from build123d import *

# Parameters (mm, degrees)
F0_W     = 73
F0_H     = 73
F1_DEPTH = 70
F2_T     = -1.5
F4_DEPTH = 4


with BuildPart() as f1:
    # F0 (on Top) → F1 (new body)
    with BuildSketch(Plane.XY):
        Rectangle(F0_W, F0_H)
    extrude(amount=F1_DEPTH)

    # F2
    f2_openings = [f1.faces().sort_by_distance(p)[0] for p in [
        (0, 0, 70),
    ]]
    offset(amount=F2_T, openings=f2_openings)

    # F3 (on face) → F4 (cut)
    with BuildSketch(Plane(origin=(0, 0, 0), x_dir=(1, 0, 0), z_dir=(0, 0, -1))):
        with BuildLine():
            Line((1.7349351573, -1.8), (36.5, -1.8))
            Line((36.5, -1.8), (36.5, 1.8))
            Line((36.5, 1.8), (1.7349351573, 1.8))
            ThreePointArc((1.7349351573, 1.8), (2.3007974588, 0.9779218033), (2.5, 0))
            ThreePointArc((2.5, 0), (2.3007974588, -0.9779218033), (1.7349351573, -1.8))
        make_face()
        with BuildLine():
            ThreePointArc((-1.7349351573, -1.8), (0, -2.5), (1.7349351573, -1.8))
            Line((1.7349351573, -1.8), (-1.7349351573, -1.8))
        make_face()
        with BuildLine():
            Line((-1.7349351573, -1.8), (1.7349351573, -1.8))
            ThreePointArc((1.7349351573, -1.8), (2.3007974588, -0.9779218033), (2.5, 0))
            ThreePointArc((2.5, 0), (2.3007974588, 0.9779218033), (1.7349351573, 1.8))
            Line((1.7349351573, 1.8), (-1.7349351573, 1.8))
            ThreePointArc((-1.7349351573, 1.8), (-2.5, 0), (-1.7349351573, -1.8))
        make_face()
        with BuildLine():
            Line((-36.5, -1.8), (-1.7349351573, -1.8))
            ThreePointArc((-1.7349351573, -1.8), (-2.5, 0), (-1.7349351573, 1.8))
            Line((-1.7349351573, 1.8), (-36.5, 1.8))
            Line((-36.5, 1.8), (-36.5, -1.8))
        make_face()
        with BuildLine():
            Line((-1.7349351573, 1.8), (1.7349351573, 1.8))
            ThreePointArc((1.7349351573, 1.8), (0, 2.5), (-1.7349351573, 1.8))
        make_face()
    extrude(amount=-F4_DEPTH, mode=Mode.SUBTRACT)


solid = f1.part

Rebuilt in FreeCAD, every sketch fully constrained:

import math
import FreeCAD as App
import Part
import Sketcher
Q = App.Units.Quantity


def faces_at(feature, points):
    """Names of the faces that lie closest to the given points."""
    faces = feature.Shape.Faces
    near = lambda p: min(range(len(faces)), key=lambda i: faces[i].distToShape(Part.Vertex(*p))[0])
    return sorted({f"Face{near(p) + 1}" for p in points})


def add_polygon(sketch, points):
    """Adds a closed chain of lines whose ends are joined by coincident constraints."""
    first, n = sketch.GeometryCount, len(points)
    for a, b in zip(points, points[1:] + points[:1]):
        sketch.addGeometry(Part.LineSegment(App.Vector(*a, 0), App.Vector(*b, 0)), False)
    for i in range(n):
        sketch.addConstraint(Sketcher.Constraint("Coincident", first + i, 2, first + (i + 1) % n, 1))

doc = App.newDocument("Part")
body = doc.addObject("PartDesign::Body", "Body")

# Sketch on XY plane
sketch1 = body.newObject("Sketcher::SketchObject", "Sketch")
sketch1.AttachmentSupport = (doc.getObject("XY_Plane"), [""])
sketch1.MapMode = "FlatFace"
add_polygon(sketch1, [(-36.5, 36.5), (-36.5, -36.5), (36.5, -36.5), (36.5, 36.5)])  # lines 0-3
sketch1.addConstraint(Sketcher.Constraint("Vertical", 0))
sketch1.addConstraint(Sketcher.Constraint("Horizontal", 1))
sketch1.addConstraint(Sketcher.Constraint("Vertical", 2))
sketch1.addConstraint(Sketcher.Constraint("Horizontal", 3))
sketch1.addConstraint(Sketcher.Constraint("Symmetric", 0, 2, 2, 2, -1, 1))
sketch1.addConstraint(Sketcher.Constraint("Equal", 3, 0))
sketch1.addConstraint(Sketcher.Constraint("DistanceX", 1, 1, 1, 2, Q("73 mm")))
pad1 = body.newObject("PartDesign::Pad", "Pad")
pad1.Profile = sketch1
pad1.Length = 70
doc.recompute()

thickness = body.newObject("PartDesign::Thickness", "Thickness")
thickness.Base = (pad1, faces_at(pad1, [(0, 0, 70)]))
thickness.Value = 1.5
thickness.Reversed = True
thickness.Join = "Arc"

# Sketch on XY plane
sketch2 = body.newObject("Sketcher::SketchObject", "Sketch001")
sketch2.AttachmentSupport = (doc.getObject("XY_Plane"), [""])
sketch2.MapMode = "FlatFace"
sketch2.addGeometry(Part.LineSegment(App.Vector(1.734935, 1.8, 0), App.Vector(36.5, 1.8, 0)), False)
sketch2.addGeometry(Part.LineSegment(App.Vector(36.5, 1.8, 0), App.Vector(36.5, -1.8, 0)), False)
sketch2.addGeometry(Part.LineSegment(App.Vector(36.5, -1.8, 0), App.Vector(1.734935, -1.8, 0)), False)
sketch2.addGeometry(Part.ArcOfCircle(Part.Circle(App.Vector(0, 0, 0), App.Vector(0, 0, 1), 2.5), math.radians(-133.94552), math.radians(-46.05448)), False)
sketch2.addGeometry(Part.LineSegment(App.Vector(-1.734935, -1.8, 0), App.Vector(-36.5, -1.8, 0)), False)
sketch2.addGeometry(Part.LineSegment(App.Vector(-36.5, -1.8, 0), App.Vector(-36.5, 1.8, 0)), False)
sketch2.addGeometry(Part.LineSegment(App.Vector(-36.5, 1.8, 0), App.Vector(-1.734935, 1.8, 0)), False)
sketch2.addGeometry(Part.ArcOfCircle(Part.Circle(App.Vector(0, 0, 0), App.Vector(0, 0, 1), 2.5), math.radians(46.05448), math.radians(133.94552)), False)
sketch2.addConstraint(Sketcher.Constraint("Coincident", 0, 2, 1, 1))
sketch2.addConstraint(Sketcher.Constraint("Coincident", 1, 2, 2, 1))
sketch2.addConstraint(Sketcher.Constraint("Coincident", 2, 2, 3, 2))
sketch2.addConstraint(Sketcher.Constraint("Coincident", 3, 1, 4, 1))
sketch2.addConstraint(Sketcher.Constraint("Coincident", 4, 2, 5, 1))
sketch2.addConstraint(Sketcher.Constraint("Coincident", 5, 2, 6, 1))
sketch2.addConstraint(Sketcher.Constraint("Coincident", 6, 2, 7, 2))
sketch2.addConstraint(Sketcher.Constraint("Coincident", 7, 1, 0, 1))
sketch2.addConstraint(Sketcher.Constraint("Horizontal", 0))
sketch2.addConstraint(Sketcher.Constraint("Vertical", 1))
sketch2.addConstraint(Sketcher.Constraint("Horizontal", 2))
sketch2.addConstraint(Sketcher.Constraint("Horizontal", 4))
sketch2.addConstraint(Sketcher.Constraint("Vertical", 5))
sketch2.addConstraint(Sketcher.Constraint("Horizontal", 6))
sketch2.addConstraint(Sketcher.Constraint("Coincident", 3, 3, -1, 1))
sketch2.addConstraint(Sketcher.Constraint("Coincident", 7, 3, -1, 1))
sketch2.addConstraint(Sketcher.Constraint("Equal", 3, 7))
sketch2.addConstraint(Sketcher.Constraint("Symmetric", 0, 2, 4, 2, -1, 1))
sketch2.addConstraint(Sketcher.Constraint("Horizontal", 2, 2, 3, 1))
sketch2.addConstraint(Sketcher.Constraint("Horizontal", 0, 2, 5, 2))
sketch2.addConstraint(Sketcher.Constraint("Radius", 3, Q("2.5 mm")))
sketch2.addConstraint(Sketcher.Constraint("DistanceY", 1, 2, 1, 1, Q("3.6 mm")))
sketch2.addConstraint(Sketcher.Constraint("DistanceX", 4, 2, 1, 2, Q("73 mm")))
pocket1 = body.newObject("PartDesign::Pocket", "Pocket")
pocket1.Profile = sketch2
pocket1.Length = 4
pocket1.Reversed = True

doc.recompute()
